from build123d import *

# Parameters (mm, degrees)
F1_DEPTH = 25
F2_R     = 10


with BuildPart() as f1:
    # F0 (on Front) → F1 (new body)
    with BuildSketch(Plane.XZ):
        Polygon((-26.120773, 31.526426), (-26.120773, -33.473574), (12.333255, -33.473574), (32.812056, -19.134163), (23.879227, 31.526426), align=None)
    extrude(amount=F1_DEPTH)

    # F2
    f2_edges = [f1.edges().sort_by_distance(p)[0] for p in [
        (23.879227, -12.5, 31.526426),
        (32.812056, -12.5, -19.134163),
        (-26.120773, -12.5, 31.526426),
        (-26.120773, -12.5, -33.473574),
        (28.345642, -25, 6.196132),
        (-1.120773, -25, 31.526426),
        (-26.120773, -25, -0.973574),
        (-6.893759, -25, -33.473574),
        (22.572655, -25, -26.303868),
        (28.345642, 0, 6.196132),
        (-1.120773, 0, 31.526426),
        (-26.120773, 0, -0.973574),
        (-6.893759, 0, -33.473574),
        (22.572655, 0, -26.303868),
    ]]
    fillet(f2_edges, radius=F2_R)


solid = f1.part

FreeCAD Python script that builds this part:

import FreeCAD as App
import Part
import Sketcher
Q = App.Units.Quantity


def edges_at(feature, points):
    """Names of the edges that pass closest to the given points."""
    edges = feature.Shape.Edges
    near = lambda p: min(range(len(edges)), key=lambda i: edges[i].distToShape(Part.Vertex(*p))[0])
    return sorted({f"Edge{near(p) + 1}" for p in points})


def add_polygon(sketch, points):
    """Adds a closed chain of lines whose ends are joined by coincident constraints."""
    first, n = sketch.GeometryCount, len(points)
    for a, b in zip(points, points[1:] + points[:1]):
        sketch.addGeometry(Part.LineSegment(App.Vector(*a, 0), App.Vector(*b, 0)), False)
    for i in range(n):
        sketch.addConstraint(Sketcher.Constraint("Coincident", first + i, 2, first + (i + 1) % n, 1))

doc = App.newDocument("Part")
body = doc.addObject("PartDesign::Body", "Body")

# Sketch on XZ plane
sketch1 = body.newObject("Sketcher::SketchObject", "Sketch")
sketch1.AttachmentSupport = (doc.getObject("XZ_Plane"), [""])
sketch1.MapMode = "FlatFace"
add_polygon(sketch1, [(-26, 32), (-26, -33), (12, -33), (33, -19), (24, 32)])  # lines 0-4
sketch1.addConstraint([
    Sketcher.Constraint("Vertical", 0),
    Sketcher.Constraint("Horizontal", 1),
    Sketcher.Constraint("Horizontal", 4),
    Sketcher.Constraint("DistanceX", 4, 2, 4, 1, 50.0),
    Sketcher.Constraint("DistanceY", 0, 2, 0, 1, 65.0),
    Sketcher.Constraint("Angle", 2, Q("35 deg")),
    Sketcher.Constraint("Angle", 3, Q("100 deg")),
    Sketcher.Constraint("Distance", 2, 25.0),
    Sketcher.Constraint("DistanceX", 0, 2, -1, 1, 26.120773),
    Sketcher.Constraint("DistanceY", 0, 2, -1, 1, 33.473574),
])
pad1 = body.newObject("PartDesign::Pad", "Pad")
pad1.Profile = sketch1
pad1.Length = 25
doc.recompute()

fillet = body.newObject("PartDesign::Fillet", "Fillet")
fillet.Base = (pad1, edges_at(pad1, [
    (23.879, -12.5, 31.526),
    (32.812, -12.5, -19.134),
    (-26.121, -12.5, 31.526),
    (-26.121, -12.5, -33.474),
    (28.346, -25, 6.196),
    (-1.121, -25, 31.526),
    (-26.121, -25, -0.974),
    (-6.894, -25, -33.474),
    (22.573, -25, -26.304),
    (28.346, 0, 6.196),
    (-1.121, 0, 31.526),
    (-26.121, 0, -0.974),
    (-6.894, 0, -33.474),
    (22.573, 0, -26.304),
]))
fillet.Radius = 10

doc.recompute()
